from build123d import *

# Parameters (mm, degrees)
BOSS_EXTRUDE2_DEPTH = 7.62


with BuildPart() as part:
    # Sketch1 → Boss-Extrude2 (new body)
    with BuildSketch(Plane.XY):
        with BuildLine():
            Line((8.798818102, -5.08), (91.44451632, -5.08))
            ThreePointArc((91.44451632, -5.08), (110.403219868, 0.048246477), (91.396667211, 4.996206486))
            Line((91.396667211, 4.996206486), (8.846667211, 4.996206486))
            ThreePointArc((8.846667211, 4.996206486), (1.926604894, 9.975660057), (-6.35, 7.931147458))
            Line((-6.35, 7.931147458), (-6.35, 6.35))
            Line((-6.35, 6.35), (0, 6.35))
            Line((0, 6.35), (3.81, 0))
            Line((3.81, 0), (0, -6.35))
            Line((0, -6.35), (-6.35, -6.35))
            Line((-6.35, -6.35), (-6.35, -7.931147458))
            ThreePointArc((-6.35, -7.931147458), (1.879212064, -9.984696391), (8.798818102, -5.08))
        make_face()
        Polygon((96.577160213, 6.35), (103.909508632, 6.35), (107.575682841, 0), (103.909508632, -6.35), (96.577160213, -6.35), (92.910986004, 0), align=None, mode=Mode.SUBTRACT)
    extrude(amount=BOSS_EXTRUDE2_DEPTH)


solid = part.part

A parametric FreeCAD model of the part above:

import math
import FreeCAD as App
import Part
import Sketcher
Q = App.Units.Quantity


def add_polygon(sketch, points):
    """Adds a closed chain of lines whose ends are joined by coincident constraints."""
    first, n = sketch.GeometryCount, len(points)
    for a, b in zip(points, points[1:] + points[:1]):
        sketch.addGeometry(Part.LineSegment(App.Vector(*a, 0), App.Vector(*b, 0)), False)
    for i in range(n):
        sketch.addConstraint(Sketcher.Constraint("Coincident", first + i, 2, first + (i + 1) % n, 1))

doc = App.newDocument("Part")
body = doc.addObject("PartDesign::Body", "Body")

sketch1 = body.newObject("Sketcher::SketchObject", "Sketch")
sketch1.AttachmentSupport = (doc.getObject("XY_Plane"), [""])
sketch1.MapMode = "FlatFace"
sketch1.addGeometry(Part.LineSegment(App.Vector(8.8, -5.1, 0), App.Vector(91.4, -5.1, 0)), False)
sketch1.addGeometry(Part.ArcOfCircle(Part.Circle(App.Vector(100.2, 0, 0), App.Vector(0, 0, 1), 10.2), math.radians(-150), math.radians(151)), False)
sketch1.addGeometry(Part.LineSegment(App.Vector(91.4, 5, 0), App.Vector(8.8, 5, 0)), False)
sketch1.addGeometry(Part.ArcOfCircle(Part.Circle(App.Vector(0, 0, 0), App.Vector(0, 0, 1), 10.2), math.radians(29), math.radians(129)), False)
sketch1.addGeometry(Part.LineSegment(App.Vector(-6.3, 7.9, 0), App.Vector(-6.3, 6.3, 0)), False)
sketch1.addGeometry(Part.LineSegment(App.Vector(-6.3, 6.3, 0), App.Vector(0, 6.3, 0)), False)
sketch1.addGeometry(Part.LineSegment(App.Vector(0, 6.3, 0), App.Vector(3.8, 0, 0)), False)
sketch1.addGeometry(Part.LineSegment(App.Vector(3.8, 0, 0), App.Vector(0, -6.3, 0)), False)
sketch1.addGeometry(Part.LineSegment(App.Vector(0, -6.3, 0), App.Vector(-6.3, -6.3, 0)), False)
sketch1.addGeometry(Part.LineSegment(App.Vector(-6.3, -6.3, 0), App.Vector(-6.3, -7.9, 0)), False)
sketch1.addGeometry(Part.ArcOfCircle(Part.Circle(App.Vector(0, 0, 0), App.Vector(0, 0, 1), 10.2), math.radians(-129), math.radians(-30)), False)
add_polygon(sketch1, [(92.9, 0), (96.6, 6.3), (103.9, 6.3), (107.6, 0), (103.9, -6.3), (96.6, -6.3)])
sketch1.addConstraint([
    Sketcher.Constraint("Coincident", 0, 2, 1, 1),
    Sketcher.Constraint("Coincident", 1, 2, 2, 1),
    Sketcher.Constraint("Coincident", 2, 2, 3, 1),
    Sketcher.Constraint("Coincident", 3, 2, 4, 1),
    Sketcher.Constraint("Coincident", 4, 2, 5, 1),
    Sketcher.Constraint("Coincident", 5, 2, 6, 1),
    Sketcher.Constraint("Coincident", 6, 2, 7, 1),
    Sketcher.Constraint("Coincident", 7, 2, 8, 1),
    Sketcher.Constraint("Coincident", 8, 2, 9, 1),
    Sketcher.Constraint("Coincident", 9, 2, 10, 1),
    Sketcher.Constraint("Coincident", 10, 2, 0, 1),
    Sketcher.Constraint("Horizontal", 0),
    Sketcher.Constraint("Horizontal", 2),
    Sketcher.Constraint("Vertical", 4),
    Sketcher.Constraint("Horizontal", 5),
    Sketcher.Constraint("Horizontal", 8),
    Sketcher.Constraint("Vertical", 9),
    Sketcher.Constraint("Horizontal", 12),
    Sketcher.Constraint("Horizontal", 15),
    Sketcher.Constraint("Coincident", 3, 3, -1, 1),
    Sketcher.Constraint("Coincident", 10, 3, -1, 1),
    Sketcher.Constraint("Equal", 1, 3),
    Sketcher.Constraint("Equal", 3, 10),
    Sketcher.Constraint("Symmetric", 5, 2, 7, 2, -1, 1),
    Sketcher.Constraint("Symmetric", 12, 2, 14, 2, -1),
    Sketcher.Constraint("PointOnObject", 1, 3, -1),
    Sketcher.Constraint("PointOnObject", 5, 2, -2),
    Sketcher.Constraint("PointOnObject", 6, 2, -1),
    Sketcher.Constraint("PointOnObject", 13, 2, -1),
    Sketcher.Constraint("PointOnObject", 16, 2, -1),
    Sketcher.Constraint("Parallel", 11, 14),
    Sketcher.Constraint("Parallel", 13, 16),
    Sketcher.Constraint("Horizontal", 5, 2, 11, 2),
    Sketcher.Constraint("Vertical", 4, 2, 8, 2),
    Sketcher.Constraint("Radius", 1, Q("0.4 in")),
    Sketcher.Constraint("Angle", 11, Q("60 deg")),
    Sketcher.Constraint("DistanceX", 2, 2, 2, 1, Q("3.25 in")),
    Sketcher.Constraint("DistanceX", 5, 1, 5, 2, Q("0.25 in")),
    Sketcher.Constraint("DistanceY", 0, 2, -1, 1, Q("0.2 in")),
    Sketcher.Constraint("DistanceX", 4, 2, 6, 2, Q("0.4 in")),
    Sketcher.Constraint("DistanceY", 7, 2, 5, 2, Q("0.5 in")),
    Sketcher.Constraint("DistanceX", 0, 1, 0, 2, Q("82.645698 mm")),
    Sketcher.Constraint("DistanceX", 12, 1, 12, 2, Q("7.332348 mm")),
    Sketcher.Constraint("DistanceX", -1, 1, 11, 2, Q("96.57716 mm")),
])
pad1 = body.newObject("PartDesign::Pad", "Pad")
pad1.Profile = sketch1
pad1.Length = Q("0.3 in")

doc.recompute()
